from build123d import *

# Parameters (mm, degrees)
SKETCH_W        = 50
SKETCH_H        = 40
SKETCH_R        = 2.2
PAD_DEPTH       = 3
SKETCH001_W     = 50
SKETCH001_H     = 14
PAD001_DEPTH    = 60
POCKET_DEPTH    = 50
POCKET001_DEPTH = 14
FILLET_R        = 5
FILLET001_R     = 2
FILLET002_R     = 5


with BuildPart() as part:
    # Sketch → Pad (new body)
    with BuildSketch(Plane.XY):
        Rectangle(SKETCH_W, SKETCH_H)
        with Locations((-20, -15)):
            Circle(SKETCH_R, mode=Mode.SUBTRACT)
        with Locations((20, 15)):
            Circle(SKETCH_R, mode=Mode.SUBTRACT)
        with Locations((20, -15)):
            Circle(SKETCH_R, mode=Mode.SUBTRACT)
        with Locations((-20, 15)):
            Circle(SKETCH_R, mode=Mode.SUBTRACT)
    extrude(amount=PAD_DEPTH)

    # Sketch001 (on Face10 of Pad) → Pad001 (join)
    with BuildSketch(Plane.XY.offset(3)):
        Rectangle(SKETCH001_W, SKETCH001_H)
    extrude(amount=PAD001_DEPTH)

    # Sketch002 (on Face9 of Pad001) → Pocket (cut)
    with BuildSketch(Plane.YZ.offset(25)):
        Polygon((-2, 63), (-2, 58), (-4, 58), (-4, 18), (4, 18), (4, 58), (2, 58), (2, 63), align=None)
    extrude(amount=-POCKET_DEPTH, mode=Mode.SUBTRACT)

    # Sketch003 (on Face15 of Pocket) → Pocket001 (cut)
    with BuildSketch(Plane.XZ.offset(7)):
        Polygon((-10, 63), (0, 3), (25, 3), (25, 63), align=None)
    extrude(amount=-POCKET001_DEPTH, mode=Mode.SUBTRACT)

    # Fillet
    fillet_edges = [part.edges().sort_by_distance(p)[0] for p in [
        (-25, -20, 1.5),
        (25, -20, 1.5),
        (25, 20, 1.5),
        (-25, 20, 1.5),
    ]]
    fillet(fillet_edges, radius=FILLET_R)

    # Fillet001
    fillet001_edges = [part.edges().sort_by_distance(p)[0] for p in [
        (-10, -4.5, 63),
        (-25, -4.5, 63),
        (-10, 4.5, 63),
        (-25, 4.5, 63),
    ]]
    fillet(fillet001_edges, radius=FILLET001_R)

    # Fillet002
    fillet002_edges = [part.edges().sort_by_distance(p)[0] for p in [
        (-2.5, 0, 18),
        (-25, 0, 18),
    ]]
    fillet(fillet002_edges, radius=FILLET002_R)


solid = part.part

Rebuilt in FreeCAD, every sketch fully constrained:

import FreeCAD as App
import Part
import Sketcher
from FreeCAD import Vector
Q = App.Units.Quantity


def edges_at(feature, points):
    """Names of the edges that pass closest to the given points."""
    edges = feature.Shape.Edges
    near = lambda p: min(range(len(edges)), key=lambda i: edges[i].distToShape(Part.Vertex(*p))[0])
    return sorted({f"Edge{near(p) + 1}" for p in points})


def add_polygon(sketch, points):
    """Adds a closed chain of lines whose ends are joined by coincident constraints."""
    first, n = sketch.GeometryCount, len(points)
    for a, b in zip(points, points[1:] + points[:1]):
        sketch.addGeometry(Part.LineSegment(App.Vector(*a, 0), App.Vector(*b, 0)), False)
    for i in range(n):
        sketch.addConstraint(Sketcher.Constraint("Coincident", first + i, 2, first + (i + 1) % n, 1))

doc = App.newDocument("Part")
body = doc.addObject("PartDesign::Body", "Body")

# Sketch on XY plane
sketch1 = body.newObject("Sketcher::SketchObject", "Sketch")
sketch1.AttachmentSupport = (doc.getObject("XY_Plane"), [""])
sketch1.MapMode = "FlatFace"
add_polygon(sketch1, [(-25, 20), (-25, -20), (25, -20), (25, 20)])  # lines 0-3
sketch1.addGeometry(Part.Circle(Vector(-20, -15, 0), Vector(0, 0, 1), 2.2), False)  # 4
sketch1.addGeometry(Part.Circle(Vector(20, -15, 0), Vector(0, 0, 1), 2.2), False)  # 5
sketch1.addGeometry(Part.Circle(Vector(-20, 15, 0), Vector(0, 0, 1), 2.2), False)  # 6
sketch1.addGeometry(Part.Circle(Vector(20, 15, 0), Vector(0, 0, 1), 2.2), False)  # 7
sketch1.addConstraint(Sketcher.Constraint("Vertical", 0))
sketch1.addConstraint(Sketcher.Constraint("Horizontal", 1))
sketch1.addConstraint(Sketcher.Constraint("Vertical", 2))
sketch1.addConstraint(Sketcher.Constraint("Horizontal", 3))
sketch1.addConstraint(Sketcher.Constraint("Equal", 4, 5))
sketch1.addConstraint(Sketcher.Constraint("Equal", 5, 6))
sketch1.addConstraint(Sketcher.Constraint("Equal", 6, 7))
sketch1.addConstraint(Sketcher.Constraint("Symmetric", 5, 3, 6, 3, -1, 1))
sketch1.addConstraint(Sketcher.Constraint("Symmetric", 4, 3, 7, 3, -1, 1))
sketch1.addConstraint(Sketcher.Constraint("Symmetric", 0, 2, 2, 2, -1, 1))
sketch1.addConstraint(Sketcher.Constraint("Symmetric", 4, 3, 5, 3, -2))
sketch1.addConstraint(Sketcher.Constraint("Diameter", 4, Q("4.4 mm")))
sketch1.addConstraint(Sketcher.Constraint("DistanceX", 1, 1, 1, 2, Q("50 mm")))
sketch1.addConstraint(Sketcher.Constraint("DistanceY", 0, 2, 0, 1, Q("40 mm")))
sketch1.addConstraint(Sketcher.Constraint("DistanceX", 4, 3, -1, 1, Q("20 mm")))
sketch1.addConstraint(Sketcher.Constraint("DistanceY", 4, 3, -1, 1, Q("15 mm")))
pad1 = body.newObject("PartDesign::Pad", "Pad")
pad1.Profile = sketch1
pad1.Length = 3

# Sketch on XY plane
sketch2 = body.newObject("Sketcher::SketchObject", "Sketch001")
sketch2.AttachmentSupport = (doc.getObject("XY_Plane"), [""])
sketch2.MapMode = "FlatFace"
sketch2.AttachmentOffset = App.Placement(Vector(0, 0, 3), App.Rotation())
add_polygon(sketch2, [(-25, 7), (-25, -7), (25, -7), (25, 7)])  # lines 0-3
sketch2.addConstraint(Sketcher.Constraint("Vertical", 0))
sketch2.addConstraint(Sketcher.Constraint("Horizontal", 1))
sketch2.addConstraint(Sketcher.Constraint("Vertical", 2))
sketch2.addConstraint(Sketcher.Constraint("Horizontal", 3))
sketch2.addConstraint(Sketcher.Constraint("Symmetric", 0, 2, 2, 2, -1, 1))
sketch2.addConstraint(Sketcher.Constraint("DistanceX", 1, 1, 1, 2, Q("50 mm")))
sketch2.addConstraint(Sketcher.Constraint("DistanceY", 0, 2, 0, 1, Q("14 mm")))
pad2 = body.newObject("PartDesign::Pad", "Pad001")
pad2.Profile = sketch2
pad2.Length = 60

# Sketch on YZ plane
sketch3 = body.newObject("Sketcher::SketchObject", "Sketch002")
sketch3.AttachmentSupport = (doc.getObject("YZ_Plane"), [""])
sketch3.MapMode = "FlatFace"
sketch3.AttachmentOffset = App.Placement(Vector(0, 0, 25), App.Rotation())
add_polygon(sketch3, [(-2, 63), (-2, 58), (-4, 58), (-4, 18), (4, 18), (4, 58), (2, 58), (2, 63)])  # lines 0-7
sketch3.addConstraint(Sketcher.Constraint("Vertical", 0))
sketch3.addConstraint(Sketcher.Constraint("Horizontal", 1))
sketch3.addConstraint(Sketcher.Constraint("Vertical", 2))
sketch3.addConstraint(Sketcher.Constraint("Horizontal", 3))
sketch3.addConstraint(Sketcher.Constraint("Vertical", 4))
sketch3.addConstraint(Sketcher.Constraint("Horizontal", 5))
sketch3.addConstraint(Sketcher.Constraint("Vertical", 6))
sketch3.addConstraint(Sketcher.Constraint("Horizontal", 7))
sketch3.addConstraint(Sketcher.Constraint("Symmetric", 1, 2, 4, 2, -2))
sketch3.addConstraint(Sketcher.Constraint("Equal", 1, 5))
sketch3.addConstraint(Sketcher.Constraint("DistanceX", 1, 2, 1, 1, Q("2 mm")))
sketch3.addConstraint(Sketcher.Constraint("DistanceX", 3, 1, 3, 2, Q("8 mm")))
sketch3.addConstraint(Sketcher.Constraint("DistanceY", 0, 2, 0, 1, Q("5 mm")))
sketch3.addConstraint(Sketcher.Constraint("DistanceY", 2, 2, 2, 1, Q("40 mm")))
sketch3.addConstraint(Sketcher.Constraint("DistanceY", -1, 1, 0, 2, Q("58 mm")))
pocket1 = body.newObject("PartDesign::Pocket", "Pocket")
pocket1.Profile = sketch3
pocket1.Length = 50

# Sketch on XZ plane
sketch4 = body.newObject("Sketcher::SketchObject", "Sketch003")
sketch4.AttachmentSupport = (doc.getObject("XZ_Plane"), [""])
sketch4.MapMode = "FlatFace"
sketch4.AttachmentOffset = App.Placement(Vector(0, 0, 7), App.Rotation())
add_polygon(sketch4, [(-10, 63), (0, 3), (25, 3), (25, 63)])  # lines 0-3
sketch4.addConstraint(Sketcher.Constraint("Horizontal", 1))
sketch4.addConstraint(Sketcher.Constraint("Vertical", 2))
sketch4.addConstraint(Sketcher.Constraint("Horizontal", 3))
sketch4.addConstraint(Sketcher.Constraint("PointOnObject", 0, 2, -2))
sketch4.addConstraint(Sketcher.Constraint("DistanceX", 1, 1, 1, 2, Q("25 mm")))
sketch4.addConstraint(Sketcher.Constraint("DistanceX", 3, 2, 3, 1, Q("35 mm")))
sketch4.addConstraint(Sketcher.Constraint("DistanceY", 2, 1, 2, 2, Q("60 mm")))
sketch4.addConstraint(Sketcher.Constraint("DistanceY", -1, 1, 0, 2, Q("3 mm")))
pocket2 = body.newObject("PartDesign::Pocket", "Pocket001")
pocket2.Profile = sketch4
pocket2.Length = 14
doc.recompute()

fillet = body.newObject("PartDesign::Fillet", "Fillet")
fillet.Base = (pocket2, edges_at(pocket2, [
    (-25, -20, 1.5),
    (25, -20, 1.5),
    (25, 20, 1.5),
    (-25, 20, 1.5),
]))
fillet.Radius = 5
doc.recompute()

fillet2 = body.newObject("PartDesign::Fillet", "Fillet001")
fillet2.Base = (fillet, edges_at(fillet, [
    (-10, -4.5, 63),
    (-25, -4.5, 63),
    (-10, 4.5, 63),
    (-25, 4.5, 63),
]))
fillet2.Radius = 2
doc.recompute()

fillet3 = body.newObject("PartDesign::Fillet", "Fillet002")
fillet3.Base = (fillet2, edges_at(fillet2, [(-2.5, 0, 18), (-25, 0, 18)]))
fillet3.Radius = 5

doc.recompute()
